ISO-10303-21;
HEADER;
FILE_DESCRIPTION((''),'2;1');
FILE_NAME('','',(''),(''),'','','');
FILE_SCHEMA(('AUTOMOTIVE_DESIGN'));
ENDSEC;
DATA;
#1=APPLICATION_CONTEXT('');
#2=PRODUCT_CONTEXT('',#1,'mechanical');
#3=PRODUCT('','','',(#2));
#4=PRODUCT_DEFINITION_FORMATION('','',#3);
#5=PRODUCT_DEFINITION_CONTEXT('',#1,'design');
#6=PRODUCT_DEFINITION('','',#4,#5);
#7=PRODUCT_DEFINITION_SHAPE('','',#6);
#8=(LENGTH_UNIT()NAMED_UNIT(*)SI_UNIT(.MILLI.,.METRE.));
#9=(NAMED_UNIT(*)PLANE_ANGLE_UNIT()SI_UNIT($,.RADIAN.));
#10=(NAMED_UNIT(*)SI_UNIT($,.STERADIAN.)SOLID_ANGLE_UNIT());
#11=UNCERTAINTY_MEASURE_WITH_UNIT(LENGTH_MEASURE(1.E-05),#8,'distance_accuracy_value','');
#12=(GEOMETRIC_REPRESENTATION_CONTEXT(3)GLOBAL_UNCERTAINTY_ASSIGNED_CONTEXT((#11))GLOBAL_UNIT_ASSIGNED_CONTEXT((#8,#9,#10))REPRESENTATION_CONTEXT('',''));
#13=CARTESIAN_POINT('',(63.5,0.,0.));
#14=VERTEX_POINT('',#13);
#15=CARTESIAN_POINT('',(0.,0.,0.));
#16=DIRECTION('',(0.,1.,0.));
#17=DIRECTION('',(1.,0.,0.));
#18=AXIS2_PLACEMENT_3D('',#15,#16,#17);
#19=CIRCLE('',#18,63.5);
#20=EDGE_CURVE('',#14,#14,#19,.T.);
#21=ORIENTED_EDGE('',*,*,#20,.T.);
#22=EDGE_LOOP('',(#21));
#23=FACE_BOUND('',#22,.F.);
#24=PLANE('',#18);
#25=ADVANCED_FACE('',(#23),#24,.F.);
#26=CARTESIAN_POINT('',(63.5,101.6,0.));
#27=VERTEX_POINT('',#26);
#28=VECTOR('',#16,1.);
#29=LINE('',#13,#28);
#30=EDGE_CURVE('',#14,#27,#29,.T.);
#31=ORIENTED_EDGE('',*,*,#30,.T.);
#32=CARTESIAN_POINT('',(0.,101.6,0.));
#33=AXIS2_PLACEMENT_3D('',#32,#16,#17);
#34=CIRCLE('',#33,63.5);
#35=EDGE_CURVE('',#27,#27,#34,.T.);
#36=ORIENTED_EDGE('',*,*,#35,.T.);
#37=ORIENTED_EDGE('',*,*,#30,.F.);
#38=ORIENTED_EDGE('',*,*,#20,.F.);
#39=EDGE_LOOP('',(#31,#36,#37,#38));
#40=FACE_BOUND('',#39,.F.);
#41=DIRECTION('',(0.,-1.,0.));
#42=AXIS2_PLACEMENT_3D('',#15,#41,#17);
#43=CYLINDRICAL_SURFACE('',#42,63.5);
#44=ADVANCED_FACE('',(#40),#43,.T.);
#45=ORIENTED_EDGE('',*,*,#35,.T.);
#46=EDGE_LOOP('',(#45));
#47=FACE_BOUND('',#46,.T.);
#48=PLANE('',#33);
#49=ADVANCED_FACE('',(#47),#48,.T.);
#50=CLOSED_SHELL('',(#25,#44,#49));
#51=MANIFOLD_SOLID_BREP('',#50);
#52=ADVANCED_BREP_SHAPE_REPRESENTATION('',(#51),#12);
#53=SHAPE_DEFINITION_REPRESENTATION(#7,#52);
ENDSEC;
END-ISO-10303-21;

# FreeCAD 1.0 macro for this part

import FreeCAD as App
import Part
import Sketcher

V = App.Vector
Q = App.Units.Quantity

doc = App.newDocument("Part")
params = doc.addObject("Spreadsheet::Sheet", "Params")
for row, (alias, value) in enumerate([
    ("sketch1_diameter", "5 in"),
    ("pad1_length", "4 in"),
], start=1):
    params.set(f"A{row}", alias)
    params.set(f"B{row}", "=" + value)
    params.setAlias(f"B{row}", alias)

body = doc.addObject("PartDesign::Body", "Body")

sketch1 = body.newObject("Sketcher::SketchObject", "Sketch")
sketch1.AttachmentSupport = (doc.getObject("XZ_Plane"), [""])
sketch1.MapMode = "FlatFace"
sketch1.addGeometry(Part.Circle(V(0, 0, 0), V(0, 0, 1), 64), False)
sketch1.addConstraint([
    Sketcher.Constraint("Coincident", 0, 3, -1, 1),
    Sketcher.Constraint("Diameter", 0, Q("5 in")),
])
sketch1.setExpression("Constraints[1]", "Params.sketch1_diameter")
pad1 = body.newObject("PartDesign::Pad", "Pad")
pad1.Profile = sketch1
pad1.setExpression("Length", "Params.pad1_length")
pad1.Reversed = True

doc.recompute()
